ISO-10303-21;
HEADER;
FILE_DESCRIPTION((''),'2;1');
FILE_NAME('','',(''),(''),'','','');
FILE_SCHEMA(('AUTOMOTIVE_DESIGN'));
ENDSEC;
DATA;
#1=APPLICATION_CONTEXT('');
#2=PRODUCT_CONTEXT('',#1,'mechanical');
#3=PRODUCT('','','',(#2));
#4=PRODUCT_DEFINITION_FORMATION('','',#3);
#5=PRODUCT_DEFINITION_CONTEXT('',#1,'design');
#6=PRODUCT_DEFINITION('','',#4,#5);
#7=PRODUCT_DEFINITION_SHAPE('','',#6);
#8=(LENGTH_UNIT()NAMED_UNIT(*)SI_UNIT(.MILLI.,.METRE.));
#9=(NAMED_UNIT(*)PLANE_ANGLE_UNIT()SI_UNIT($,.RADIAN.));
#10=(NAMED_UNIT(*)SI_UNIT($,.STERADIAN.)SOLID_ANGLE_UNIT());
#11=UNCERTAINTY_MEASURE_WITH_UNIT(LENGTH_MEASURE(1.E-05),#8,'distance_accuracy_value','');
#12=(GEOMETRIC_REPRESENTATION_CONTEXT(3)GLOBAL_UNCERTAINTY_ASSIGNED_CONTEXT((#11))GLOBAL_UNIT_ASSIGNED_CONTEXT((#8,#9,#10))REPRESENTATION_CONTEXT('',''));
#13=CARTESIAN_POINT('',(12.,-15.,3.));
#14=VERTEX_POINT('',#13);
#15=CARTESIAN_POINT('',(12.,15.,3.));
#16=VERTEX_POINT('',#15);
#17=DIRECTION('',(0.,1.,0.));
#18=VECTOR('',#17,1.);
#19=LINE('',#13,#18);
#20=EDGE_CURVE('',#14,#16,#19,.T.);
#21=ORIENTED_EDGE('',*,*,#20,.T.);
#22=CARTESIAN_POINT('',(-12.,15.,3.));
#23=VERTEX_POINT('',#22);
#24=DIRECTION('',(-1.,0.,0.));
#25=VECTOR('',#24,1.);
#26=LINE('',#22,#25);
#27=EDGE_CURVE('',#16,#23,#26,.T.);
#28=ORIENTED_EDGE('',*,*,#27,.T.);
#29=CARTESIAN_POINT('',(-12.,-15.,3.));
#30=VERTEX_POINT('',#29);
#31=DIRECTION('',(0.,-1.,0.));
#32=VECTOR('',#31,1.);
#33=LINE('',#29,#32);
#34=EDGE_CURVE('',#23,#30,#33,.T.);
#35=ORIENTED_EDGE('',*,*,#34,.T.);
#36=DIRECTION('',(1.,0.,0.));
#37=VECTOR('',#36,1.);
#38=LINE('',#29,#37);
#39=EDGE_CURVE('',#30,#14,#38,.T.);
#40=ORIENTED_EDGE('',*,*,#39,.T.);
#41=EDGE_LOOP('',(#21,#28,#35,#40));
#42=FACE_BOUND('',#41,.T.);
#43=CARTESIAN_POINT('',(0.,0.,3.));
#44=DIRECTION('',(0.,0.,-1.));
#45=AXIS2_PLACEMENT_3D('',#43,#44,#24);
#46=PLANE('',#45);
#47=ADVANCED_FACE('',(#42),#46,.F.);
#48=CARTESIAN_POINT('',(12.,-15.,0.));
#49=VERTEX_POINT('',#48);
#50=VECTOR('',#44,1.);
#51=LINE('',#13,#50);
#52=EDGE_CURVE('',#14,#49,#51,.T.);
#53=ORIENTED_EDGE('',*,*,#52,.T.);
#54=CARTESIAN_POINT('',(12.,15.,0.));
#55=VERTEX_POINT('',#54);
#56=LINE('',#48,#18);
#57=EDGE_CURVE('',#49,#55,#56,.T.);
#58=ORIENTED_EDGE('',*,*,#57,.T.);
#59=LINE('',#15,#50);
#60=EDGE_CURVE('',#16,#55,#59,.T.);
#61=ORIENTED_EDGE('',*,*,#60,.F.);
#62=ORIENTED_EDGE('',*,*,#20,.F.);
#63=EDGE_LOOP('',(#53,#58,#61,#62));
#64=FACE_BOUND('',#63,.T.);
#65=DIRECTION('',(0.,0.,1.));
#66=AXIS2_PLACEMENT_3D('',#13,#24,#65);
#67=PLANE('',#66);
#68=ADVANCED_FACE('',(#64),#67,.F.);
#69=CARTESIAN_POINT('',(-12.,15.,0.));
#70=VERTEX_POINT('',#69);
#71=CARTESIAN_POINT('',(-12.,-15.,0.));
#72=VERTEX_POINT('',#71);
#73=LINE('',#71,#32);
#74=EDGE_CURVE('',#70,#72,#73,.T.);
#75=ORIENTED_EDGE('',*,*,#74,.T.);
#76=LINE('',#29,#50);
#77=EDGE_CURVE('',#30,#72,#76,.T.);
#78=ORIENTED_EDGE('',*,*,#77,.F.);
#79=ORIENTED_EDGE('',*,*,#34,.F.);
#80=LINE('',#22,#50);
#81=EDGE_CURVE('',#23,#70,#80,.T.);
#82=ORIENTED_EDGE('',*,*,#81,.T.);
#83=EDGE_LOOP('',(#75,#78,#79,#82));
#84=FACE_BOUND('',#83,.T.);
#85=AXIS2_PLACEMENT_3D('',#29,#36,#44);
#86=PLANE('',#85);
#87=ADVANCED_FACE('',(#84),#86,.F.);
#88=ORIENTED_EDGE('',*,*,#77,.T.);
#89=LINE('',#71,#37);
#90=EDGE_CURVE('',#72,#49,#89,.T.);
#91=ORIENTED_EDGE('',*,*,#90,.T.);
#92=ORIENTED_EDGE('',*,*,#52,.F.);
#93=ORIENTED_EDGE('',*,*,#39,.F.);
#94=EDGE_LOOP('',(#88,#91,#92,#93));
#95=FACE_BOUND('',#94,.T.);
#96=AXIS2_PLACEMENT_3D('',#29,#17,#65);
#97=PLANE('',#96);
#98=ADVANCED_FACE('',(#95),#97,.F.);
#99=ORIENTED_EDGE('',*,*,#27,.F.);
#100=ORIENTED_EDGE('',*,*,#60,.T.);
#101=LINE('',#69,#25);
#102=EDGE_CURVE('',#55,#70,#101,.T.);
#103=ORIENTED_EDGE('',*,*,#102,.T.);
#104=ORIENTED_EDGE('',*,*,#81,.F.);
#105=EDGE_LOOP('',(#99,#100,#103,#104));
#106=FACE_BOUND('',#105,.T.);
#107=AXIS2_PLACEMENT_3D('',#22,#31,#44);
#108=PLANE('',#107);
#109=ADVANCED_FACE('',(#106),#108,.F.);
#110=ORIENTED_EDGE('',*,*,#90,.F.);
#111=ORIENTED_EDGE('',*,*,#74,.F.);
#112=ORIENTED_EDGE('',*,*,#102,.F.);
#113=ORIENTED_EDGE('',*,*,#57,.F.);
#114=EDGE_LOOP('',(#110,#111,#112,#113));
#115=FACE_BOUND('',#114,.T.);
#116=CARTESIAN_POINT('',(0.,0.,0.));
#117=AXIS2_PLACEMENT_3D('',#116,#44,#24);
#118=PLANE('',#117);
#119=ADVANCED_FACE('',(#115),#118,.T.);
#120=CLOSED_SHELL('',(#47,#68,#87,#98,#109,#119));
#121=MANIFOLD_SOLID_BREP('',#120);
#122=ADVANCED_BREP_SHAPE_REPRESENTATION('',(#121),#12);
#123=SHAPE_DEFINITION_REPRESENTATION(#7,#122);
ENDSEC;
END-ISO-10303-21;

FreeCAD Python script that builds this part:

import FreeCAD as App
import Part
import Sketcher
from FreeCAD import Vector
Q = App.Units.Quantity

doc = App.newDocument("Part")
body = doc.addObject("PartDesign::Body", "Body")

sketch1 = body.newObject("Sketcher::SketchObject", "Sketch")
sketch1.AttachmentSupport = (doc.getObject("XY_Plane"), [""])
sketch1.MapMode = "FlatFace"
sketch1.addGeometry([
    Part.LineSegment(Vector(-12, 15, 0), Vector(-12, -15, 0)),
    Part.LineSegment(Vector(-12, -15, 0), Vector(12, -15, 0)),
    Part.LineSegment(Vector(12, -15, 0), Vector(12, 15, 0)),
    Part.LineSegment(Vector(12, 15, 0), Vector(-12, 15, 0)),
], False)
sketch1.addConstraint([
    Sketcher.Constraint("Coincident", 0, 2, 1, 1),
    Sketcher.Constraint("Coincident", 1, 2, 2, 1),
    Sketcher.Constraint("Coincident", 2, 2, 3, 1),
    Sketcher.Constraint("Coincident", 3, 2, 0, 1),
    Sketcher.Constraint("Vertical", 0),
    Sketcher.Constraint("Horizontal", 1),
    Sketcher.Constraint("Vertical", 2),
    Sketcher.Constraint("Horizontal", 3),
    Sketcher.Constraint("Symmetric", 0, 2, 2, 2, -1, 1),
    Sketcher.Constraint("DistanceX", 1, 1, 1, 2, Q("24 mm")),
    Sketcher.Constraint("DistanceY", 0, 2, 0, 1, Q("30 mm")),
])
pad1 = body.newObject("PartDesign::Pad", "Pad")
pad1.Profile = sketch1
pad1.Length = 3

doc.recompute()
